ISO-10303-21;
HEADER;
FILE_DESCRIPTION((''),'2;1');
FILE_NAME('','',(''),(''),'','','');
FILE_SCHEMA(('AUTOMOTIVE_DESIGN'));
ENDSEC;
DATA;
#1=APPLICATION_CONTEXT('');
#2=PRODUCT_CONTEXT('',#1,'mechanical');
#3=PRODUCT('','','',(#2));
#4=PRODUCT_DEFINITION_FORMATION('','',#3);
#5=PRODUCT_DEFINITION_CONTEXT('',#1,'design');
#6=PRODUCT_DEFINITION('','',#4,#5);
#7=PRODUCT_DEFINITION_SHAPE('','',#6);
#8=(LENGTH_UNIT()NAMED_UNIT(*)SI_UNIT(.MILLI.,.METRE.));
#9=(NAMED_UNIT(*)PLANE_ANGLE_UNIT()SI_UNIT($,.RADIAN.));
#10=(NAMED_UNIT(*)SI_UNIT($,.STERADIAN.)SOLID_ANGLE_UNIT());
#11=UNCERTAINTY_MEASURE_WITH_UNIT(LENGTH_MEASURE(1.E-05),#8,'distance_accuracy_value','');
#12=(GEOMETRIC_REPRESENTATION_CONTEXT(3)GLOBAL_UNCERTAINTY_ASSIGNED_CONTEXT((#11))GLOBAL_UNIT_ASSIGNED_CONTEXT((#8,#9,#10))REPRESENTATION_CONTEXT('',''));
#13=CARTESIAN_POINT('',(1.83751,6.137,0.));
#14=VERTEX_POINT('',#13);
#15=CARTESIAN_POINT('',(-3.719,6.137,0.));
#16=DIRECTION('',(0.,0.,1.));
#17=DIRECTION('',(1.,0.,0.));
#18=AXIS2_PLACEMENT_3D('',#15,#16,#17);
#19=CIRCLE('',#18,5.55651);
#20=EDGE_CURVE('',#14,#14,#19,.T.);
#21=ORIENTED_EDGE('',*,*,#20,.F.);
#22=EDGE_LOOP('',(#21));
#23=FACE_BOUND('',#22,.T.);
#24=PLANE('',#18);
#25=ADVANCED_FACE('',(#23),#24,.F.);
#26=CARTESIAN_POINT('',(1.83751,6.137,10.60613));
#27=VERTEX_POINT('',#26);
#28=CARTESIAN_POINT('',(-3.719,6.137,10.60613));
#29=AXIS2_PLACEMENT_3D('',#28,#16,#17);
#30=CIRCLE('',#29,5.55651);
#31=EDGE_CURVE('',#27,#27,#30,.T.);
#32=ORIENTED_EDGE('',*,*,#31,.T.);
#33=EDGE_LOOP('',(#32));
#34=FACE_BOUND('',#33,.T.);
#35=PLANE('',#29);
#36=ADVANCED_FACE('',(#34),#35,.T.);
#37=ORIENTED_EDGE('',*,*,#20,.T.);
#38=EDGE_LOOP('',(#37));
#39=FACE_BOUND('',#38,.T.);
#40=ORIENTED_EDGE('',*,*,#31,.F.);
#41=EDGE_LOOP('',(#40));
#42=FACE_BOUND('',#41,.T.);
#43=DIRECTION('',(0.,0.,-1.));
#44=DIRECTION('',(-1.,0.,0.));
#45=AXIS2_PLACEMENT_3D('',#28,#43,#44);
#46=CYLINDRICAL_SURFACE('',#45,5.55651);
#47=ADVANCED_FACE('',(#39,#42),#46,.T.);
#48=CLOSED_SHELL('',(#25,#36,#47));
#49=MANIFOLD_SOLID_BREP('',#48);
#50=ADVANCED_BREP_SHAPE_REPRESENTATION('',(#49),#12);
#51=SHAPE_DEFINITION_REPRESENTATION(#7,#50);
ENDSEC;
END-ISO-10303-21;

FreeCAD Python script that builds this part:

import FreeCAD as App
import Part
import Sketcher

V = App.Vector
Q = App.Units.Quantity

doc = App.newDocument("Part")
body = doc.addObject("PartDesign::Body", "Body")

sketch1 = body.newObject("Sketcher::SketchObject", "Sketch")
sketch1.AttachmentSupport = (doc.getObject("XY_Plane"), [""])
sketch1.MapMode = "FlatFace"
sketch1.addGeometry(Part.Circle(V(-3.719, 6.137, 0), V(0, 0, 1), 5.55651), False)
sketch1.addConstraint([
    Sketcher.Constraint("Diameter", 0, Q("11.11302 mm")),
    Sketcher.Constraint("DistanceX", 0, 3, -1, 1, Q("3.719 mm")),
    Sketcher.Constraint("DistanceY", -1, 1, 0, 3, Q("6.137 mm")),
])
pad1 = body.newObject("PartDesign::Pad", "Pad")
pad1.Profile = sketch1
pad1.Length = 10.60613

doc.recompute()
